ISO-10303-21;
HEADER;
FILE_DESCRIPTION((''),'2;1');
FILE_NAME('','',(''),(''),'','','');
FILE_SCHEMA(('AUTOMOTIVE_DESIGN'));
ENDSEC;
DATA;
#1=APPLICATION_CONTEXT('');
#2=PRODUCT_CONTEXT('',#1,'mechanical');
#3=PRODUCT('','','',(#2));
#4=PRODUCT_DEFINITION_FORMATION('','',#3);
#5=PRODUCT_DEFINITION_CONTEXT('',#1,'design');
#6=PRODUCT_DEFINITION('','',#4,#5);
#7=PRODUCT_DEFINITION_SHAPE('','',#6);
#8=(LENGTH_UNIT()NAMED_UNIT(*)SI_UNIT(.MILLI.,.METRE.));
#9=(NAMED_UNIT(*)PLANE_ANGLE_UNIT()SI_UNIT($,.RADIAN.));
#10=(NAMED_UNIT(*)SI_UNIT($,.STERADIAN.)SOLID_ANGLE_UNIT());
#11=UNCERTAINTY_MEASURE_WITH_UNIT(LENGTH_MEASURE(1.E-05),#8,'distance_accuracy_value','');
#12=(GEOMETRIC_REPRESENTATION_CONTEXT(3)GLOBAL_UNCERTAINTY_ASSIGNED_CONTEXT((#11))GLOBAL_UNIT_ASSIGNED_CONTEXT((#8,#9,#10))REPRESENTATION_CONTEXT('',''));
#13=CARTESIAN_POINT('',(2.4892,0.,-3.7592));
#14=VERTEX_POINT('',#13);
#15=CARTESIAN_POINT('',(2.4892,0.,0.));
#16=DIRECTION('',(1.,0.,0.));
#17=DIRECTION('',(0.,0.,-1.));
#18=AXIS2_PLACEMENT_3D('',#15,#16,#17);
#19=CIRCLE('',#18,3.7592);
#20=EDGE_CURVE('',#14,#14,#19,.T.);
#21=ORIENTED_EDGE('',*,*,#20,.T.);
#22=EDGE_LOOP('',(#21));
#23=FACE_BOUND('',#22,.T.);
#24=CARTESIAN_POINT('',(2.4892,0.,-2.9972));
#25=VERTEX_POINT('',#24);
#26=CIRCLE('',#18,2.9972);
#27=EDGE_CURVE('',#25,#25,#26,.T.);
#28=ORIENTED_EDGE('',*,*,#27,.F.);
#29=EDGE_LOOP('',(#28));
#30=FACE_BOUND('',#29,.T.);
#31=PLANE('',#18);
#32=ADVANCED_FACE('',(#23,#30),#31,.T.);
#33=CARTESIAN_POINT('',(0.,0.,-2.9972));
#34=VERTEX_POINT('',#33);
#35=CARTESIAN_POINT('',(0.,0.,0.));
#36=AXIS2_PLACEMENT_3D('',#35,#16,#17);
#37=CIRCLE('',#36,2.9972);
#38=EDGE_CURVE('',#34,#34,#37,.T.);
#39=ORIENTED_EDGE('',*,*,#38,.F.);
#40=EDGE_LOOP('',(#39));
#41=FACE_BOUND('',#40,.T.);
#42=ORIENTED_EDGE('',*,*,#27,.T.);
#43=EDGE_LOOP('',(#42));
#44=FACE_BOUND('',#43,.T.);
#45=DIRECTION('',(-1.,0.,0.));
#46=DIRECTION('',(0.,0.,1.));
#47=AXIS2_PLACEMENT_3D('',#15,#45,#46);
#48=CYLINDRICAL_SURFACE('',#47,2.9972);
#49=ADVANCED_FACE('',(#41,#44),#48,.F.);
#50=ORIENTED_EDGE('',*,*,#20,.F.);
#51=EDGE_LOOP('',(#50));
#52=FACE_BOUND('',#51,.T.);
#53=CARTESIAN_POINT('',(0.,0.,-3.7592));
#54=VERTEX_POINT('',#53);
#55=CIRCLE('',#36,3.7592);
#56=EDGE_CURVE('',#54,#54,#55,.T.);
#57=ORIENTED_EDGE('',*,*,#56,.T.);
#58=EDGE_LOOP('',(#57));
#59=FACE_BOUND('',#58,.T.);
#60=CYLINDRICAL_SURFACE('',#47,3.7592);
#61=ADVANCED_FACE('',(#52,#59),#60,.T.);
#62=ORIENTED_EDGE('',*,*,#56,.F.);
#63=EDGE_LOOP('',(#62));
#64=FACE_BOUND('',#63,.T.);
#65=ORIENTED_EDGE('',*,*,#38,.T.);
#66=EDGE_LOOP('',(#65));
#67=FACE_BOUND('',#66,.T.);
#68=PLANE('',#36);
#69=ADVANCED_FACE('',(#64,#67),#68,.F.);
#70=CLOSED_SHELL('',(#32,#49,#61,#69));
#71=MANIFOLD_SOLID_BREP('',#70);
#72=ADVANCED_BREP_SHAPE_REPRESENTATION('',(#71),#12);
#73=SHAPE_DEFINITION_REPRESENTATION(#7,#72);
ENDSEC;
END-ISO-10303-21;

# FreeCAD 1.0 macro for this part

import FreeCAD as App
import Part
import Sketcher
from FreeCAD import Vector
Q = App.Units.Quantity

doc = App.newDocument("Part")
body = doc.addObject("PartDesign::Body", "Body")

sketch1 = body.newObject("Sketcher::SketchObject", "Sketch")
sketch1.AttachmentSupport = (doc.getObject("YZ_Plane"), [""])
sketch1.MapMode = "FlatFace"
sketch1.addGeometry([
    Part.Circle(Vector(0, 0, 0), Vector(0, 0, 1), 3.7592),
    Part.Circle(Vector(0, 0, 0), Vector(0, 0, 1), 2.9972),
], False)
sketch1.addConstraint([
    Sketcher.Constraint("Coincident", 0, 3, -1, 1),
    Sketcher.Constraint("Coincident", 1, 3, -1, 1),
    Sketcher.Constraint("Diameter", 0, Q("0.296 in")),
    Sketcher.Constraint("Diameter", 1, Q("0.236 in")),
])
pad1 = body.newObject("PartDesign::Pad", "Pad")
pad1.Profile = sketch1
pad1.Length = Q("0.098 in")

doc.recompute()
